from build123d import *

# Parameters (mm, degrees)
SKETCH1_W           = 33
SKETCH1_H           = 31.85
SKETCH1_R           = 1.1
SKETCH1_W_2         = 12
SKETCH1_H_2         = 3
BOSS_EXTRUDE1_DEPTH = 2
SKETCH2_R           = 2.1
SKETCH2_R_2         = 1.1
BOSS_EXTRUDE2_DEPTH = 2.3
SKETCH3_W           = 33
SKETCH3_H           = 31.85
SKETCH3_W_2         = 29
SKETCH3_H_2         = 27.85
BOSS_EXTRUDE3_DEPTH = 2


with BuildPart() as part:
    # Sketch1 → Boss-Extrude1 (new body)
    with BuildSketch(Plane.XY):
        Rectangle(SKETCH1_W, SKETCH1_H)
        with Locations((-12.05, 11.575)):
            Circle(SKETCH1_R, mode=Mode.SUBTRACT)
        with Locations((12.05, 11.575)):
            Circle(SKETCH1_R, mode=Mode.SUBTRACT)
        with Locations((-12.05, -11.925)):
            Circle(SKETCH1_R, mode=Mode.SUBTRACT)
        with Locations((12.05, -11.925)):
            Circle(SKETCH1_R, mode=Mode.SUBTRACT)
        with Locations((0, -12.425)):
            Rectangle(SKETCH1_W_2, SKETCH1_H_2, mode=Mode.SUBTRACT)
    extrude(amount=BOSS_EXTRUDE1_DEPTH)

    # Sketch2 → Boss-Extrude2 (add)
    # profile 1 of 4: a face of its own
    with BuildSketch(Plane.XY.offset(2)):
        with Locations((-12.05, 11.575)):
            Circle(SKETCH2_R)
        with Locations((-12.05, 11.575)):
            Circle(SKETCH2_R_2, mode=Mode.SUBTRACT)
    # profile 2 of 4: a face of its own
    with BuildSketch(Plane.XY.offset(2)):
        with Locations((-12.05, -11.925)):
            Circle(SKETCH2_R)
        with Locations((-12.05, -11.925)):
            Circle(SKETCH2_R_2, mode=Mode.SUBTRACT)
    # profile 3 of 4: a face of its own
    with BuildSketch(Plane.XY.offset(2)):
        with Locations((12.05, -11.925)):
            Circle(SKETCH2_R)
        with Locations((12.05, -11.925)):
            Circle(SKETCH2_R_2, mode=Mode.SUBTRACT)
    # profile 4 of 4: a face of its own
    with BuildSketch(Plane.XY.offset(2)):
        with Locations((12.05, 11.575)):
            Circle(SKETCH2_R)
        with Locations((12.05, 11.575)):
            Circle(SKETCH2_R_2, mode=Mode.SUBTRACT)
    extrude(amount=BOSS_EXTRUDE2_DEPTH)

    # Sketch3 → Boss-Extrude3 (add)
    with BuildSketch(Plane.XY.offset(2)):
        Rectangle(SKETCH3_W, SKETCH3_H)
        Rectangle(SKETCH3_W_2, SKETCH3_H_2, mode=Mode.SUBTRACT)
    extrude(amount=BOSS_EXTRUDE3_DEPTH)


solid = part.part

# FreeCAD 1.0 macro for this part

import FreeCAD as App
import Part
import Sketcher
from FreeCAD import Vector

doc = App.newDocument("Part")
body = doc.addObject("PartDesign::Body", "Body")

sketch1 = body.newObject("Sketcher::SketchObject", "Sketch")
sketch1.AttachmentSupport = (doc.getObject("XY_Plane"), [""])
sketch1.MapMode = "FlatFace"
sketch1.addGeometry([
    Part.LineSegment(Vector(-16.5, 15.9, 0), Vector(-16.5, -15.9, 0)),
    Part.LineSegment(Vector(-16.5, -15.9, 0), Vector(16.5, -15.9, 0)),
    Part.LineSegment(Vector(16.5, -15.9, 0), Vector(16.5, 15.9, 0)),
    Part.LineSegment(Vector(16.5, 15.9, 0), Vector(-16.5, 15.9, 0)),
    Part.Circle(Vector(-12.1, -11.9, 0), Vector(0, 0, 1), 1.1),
    Part.LineSegment(Vector(6, -13.9, 0), Vector(-6, -13.9, 0)),
    Part.LineSegment(Vector(-6, -13.9, 0), Vector(-6, -10.9, 0)),
    Part.LineSegment(Vector(-6, -10.9, 0), Vector(6, -10.9, 0)),
    Part.LineSegment(Vector(6, -10.9, 0), Vector(6, -13.9, 0)),
    Part.Circle(Vector(12.1, -11.9, 0), Vector(0, 0, 1), 1.1),
    Part.Circle(Vector(-12.1, 11.6, 0), Vector(0, 0, 1), 1.1),
    Part.Circle(Vector(12.1, 11.6, 0), Vector(0, 0, 1), 1.1),
], False)
sketch1.addConstraint([
    Sketcher.Constraint("Coincident", 0, 2, 1, 1),
    Sketcher.Constraint("Coincident", 1, 2, 2, 1),
    Sketcher.Constraint("Coincident", 2, 2, 3, 1),
    Sketcher.Constraint("Coincident", 3, 2, 0, 1),
    Sketcher.Constraint("Coincident", 5, 2, 6, 1),
    Sketcher.Constraint("Coincident", 6, 2, 7, 1),
    Sketcher.Constraint("Coincident", 7, 2, 8, 1),
    Sketcher.Constraint("Coincident", 8, 2, 5, 1),
    Sketcher.Constraint("Vertical", 0),
    Sketcher.Constraint("Horizontal", 1),
    Sketcher.Constraint("Vertical", 2),
    Sketcher.Constraint("Horizontal", 3),
    Sketcher.Constraint("Horizontal", 5),
    Sketcher.Constraint("Vertical", 6),
    Sketcher.Constraint("Horizontal", 7),
    Sketcher.Constraint("Vertical", 8),
    Sketcher.Constraint("Equal", 4, 9),
    Sketcher.Constraint("Equal", 9, 10),
    Sketcher.Constraint("Equal", 10, 11),
    Sketcher.Constraint("Symmetric", 0, 2, 2, 2, -1, 1),
    Sketcher.Constraint("Symmetric", 4, 3, 9, 3, -2),
    Sketcher.Constraint("Symmetric", 10, 3, 11, 3, -2),
    Sketcher.Constraint("Vertical", 4, 3, 10, 3),
    Sketcher.Constraint("Diameter", 4, 2.2),
    Sketcher.Constraint("DistanceX", 1, 1, 1, 2, 33.0),
    Sketcher.Constraint("DistanceX", 5, 2, 5, 1, 12.0),
    Sketcher.Constraint("DistanceY", 6, 1, 6, 2, 3.0),
    Sketcher.Constraint("DistanceX", 5, 2, -1, 1, 6.0),
    Sketcher.Constraint("DistanceY", 0, 2, 4, 3, 4.0),
    Sketcher.Constraint("DistanceY", 5, 2, 4, 3, 2.0),
    Sketcher.Constraint("DistanceY", 0, 2, 0, 1, 31.85),
    Sketcher.Constraint("DistanceX", 4, 3, 9, 3, 24.1),
    Sketcher.Constraint("DistanceY", 4, 3, 10, 3, 23.5),
])
pad1 = body.newObject("PartDesign::Pad", "Pad")
pad1.Profile = sketch1
pad1.Length = 2

sketch2 = body.newObject("Sketcher::SketchObject", "Sketch001")
sketch2.AttachmentSupport = (doc.getObject("XY_Plane"), [""])
sketch2.MapMode = "FlatFace"
sketch2.AttachmentOffset = App.Placement(Vector(0, 0, 2), App.Rotation())
sketch2.addGeometry([
    Part.Circle(Vector(-12.1, 11.6, 0), Vector(0, 0, 1), 2.1),
    Part.Circle(Vector(-12.1, 11.6, 0), Vector(0, 0, 1), 1.1),
    Part.Circle(Vector(-12.1, -11.9, 0), Vector(0, 0, 1), 2.1),
    Part.Circle(Vector(-12.1, -11.9, 0), Vector(0, 0, 1), 1.1),
    Part.Circle(Vector(12.1, -11.9, 0), Vector(0, 0, 1), 2.1),
    Part.Circle(Vector(12.1, -11.9, 0), Vector(0, 0, 1), 1.1),
    Part.Circle(Vector(12.1, 11.6, 0), Vector(0, 0, 1), 2.1),
    Part.Circle(Vector(12.1, 11.6, 0), Vector(0, 0, 1), 1.1),
], False)
sketch2.addConstraint([
    Sketcher.Constraint("Coincident", 1, 3, 0, 3),
    Sketcher.Constraint("Coincident", 3, 3, 2, 3),
    Sketcher.Constraint("Coincident", 5, 3, 4, 3),
    Sketcher.Constraint("Coincident", 7, 3, 6, 3),
    Sketcher.Constraint("Equal", 0, 2),
    Sketcher.Constraint("Equal", 1, 3),
    Sketcher.Constraint("Equal", 2, 4),
    Sketcher.Constraint("Equal", 3, 5),
    Sketcher.Constraint("Equal", 4, 6),
    Sketcher.Constraint("Equal", 5, 7),
    Sketcher.Constraint("Symmetric", 2, 3, 4, 3, -2),
    Sketcher.Constraint("Symmetric", 0, 3, 6, 3, -2),
    Sketcher.Constraint("Vertical", 1, 3, 2, 3),
    Sketcher.Constraint("Diameter", 0, 4.2),
    Sketcher.Constraint("Diameter", 1, 2.2),
    Sketcher.Constraint("DistanceY", 2, 3, 0, 3, 23.5),
    Sketcher.Constraint("DistanceX", 2, 3, 4, 3, 24.1),
    Sketcher.Constraint("DistanceY", -1, 1, 0, 3, 11.575),
])
pad2 = body.newObject("PartDesign::Pad", "Pad001")
pad2.Profile = sketch2
pad2.Length = 2.3

sketch3 = body.newObject("Sketcher::SketchObject", "Sketch002")
sketch3.AttachmentSupport = (doc.getObject("XY_Plane"), [""])
sketch3.MapMode = "FlatFace"
sketch3.AttachmentOffset = App.Placement(Vector(0, 0, 2), App.Rotation())
sketch3.addGeometry([
    Part.LineSegment(Vector(-16, 16, 0), Vector(-16, -16, 0)),
    Part.LineSegment(Vector(-16, -16, 0), Vector(16, -16, 0)),
    Part.LineSegment(Vector(16, -16, 0), Vector(16, 16, 0)),
    Part.LineSegment(Vector(16, 16, 0), Vector(-16, 16, 0)),
    Part.LineSegment(Vector(14, -14, 0), Vector(-14, -14, 0)),
    Part.LineSegment(Vector(-14, -14, 0), Vector(-14, 14, 0)),
    Part.LineSegment(Vector(-14, 14, 0), Vector(14, 14, 0)),
    Part.LineSegment(Vector(14, 14, 0), Vector(14, -14, 0)),
], False)
sketch3.addConstraint([
    Sketcher.Constraint("Coincident", 0, 2, 1, 1),
    Sketcher.Constraint("Coincident", 1, 2, 2, 1),
    Sketcher.Constraint("Coincident", 2, 2, 3, 1),
    Sketcher.Constraint("Coincident", 3, 2, 0, 1),
    Sketcher.Constraint("Coincident", 4, 2, 5, 1),
    Sketcher.Constraint("Coincident", 5, 2, 6, 1),
    Sketcher.Constraint("Coincident", 6, 2, 7, 1),
    Sketcher.Constraint("Coincident", 7, 2, 4, 1),
    Sketcher.Constraint("Vertical", 0),
    Sketcher.Constraint("Horizontal", 1),
    Sketcher.Constraint("Vertical", 2),
    Sketcher.Constraint("Horizontal", 3),
    Sketcher.Constraint("Horizontal", 4),
    Sketcher.Constraint("Vertical", 5),
    Sketcher.Constraint("Horizontal", 6),
    Sketcher.Constraint("Vertical", 7),
    Sketcher.Constraint("Symmetric", 0, 2, 2, 2, -1, 1),
    Sketcher.Constraint("Symmetric", 4, 2, 6, 2, -1, 1),
    Sketcher.Constraint("DistanceX", 1, 1, 1, 2, 33.0),
    Sketcher.Constraint("DistanceX", 4, 2, 4, 1, 29.0),
    Sketcher.Constraint("DistanceY", 0, 2, 4, 2, 2.0),
    Sketcher.Constraint("DistanceY", 0, 2, 0, 1, 31.85),
])
pad3 = body.newObject("PartDesign::Pad", "Pad002")
pad3.Profile = sketch3
pad3.Length = 2

doc.recompute()
